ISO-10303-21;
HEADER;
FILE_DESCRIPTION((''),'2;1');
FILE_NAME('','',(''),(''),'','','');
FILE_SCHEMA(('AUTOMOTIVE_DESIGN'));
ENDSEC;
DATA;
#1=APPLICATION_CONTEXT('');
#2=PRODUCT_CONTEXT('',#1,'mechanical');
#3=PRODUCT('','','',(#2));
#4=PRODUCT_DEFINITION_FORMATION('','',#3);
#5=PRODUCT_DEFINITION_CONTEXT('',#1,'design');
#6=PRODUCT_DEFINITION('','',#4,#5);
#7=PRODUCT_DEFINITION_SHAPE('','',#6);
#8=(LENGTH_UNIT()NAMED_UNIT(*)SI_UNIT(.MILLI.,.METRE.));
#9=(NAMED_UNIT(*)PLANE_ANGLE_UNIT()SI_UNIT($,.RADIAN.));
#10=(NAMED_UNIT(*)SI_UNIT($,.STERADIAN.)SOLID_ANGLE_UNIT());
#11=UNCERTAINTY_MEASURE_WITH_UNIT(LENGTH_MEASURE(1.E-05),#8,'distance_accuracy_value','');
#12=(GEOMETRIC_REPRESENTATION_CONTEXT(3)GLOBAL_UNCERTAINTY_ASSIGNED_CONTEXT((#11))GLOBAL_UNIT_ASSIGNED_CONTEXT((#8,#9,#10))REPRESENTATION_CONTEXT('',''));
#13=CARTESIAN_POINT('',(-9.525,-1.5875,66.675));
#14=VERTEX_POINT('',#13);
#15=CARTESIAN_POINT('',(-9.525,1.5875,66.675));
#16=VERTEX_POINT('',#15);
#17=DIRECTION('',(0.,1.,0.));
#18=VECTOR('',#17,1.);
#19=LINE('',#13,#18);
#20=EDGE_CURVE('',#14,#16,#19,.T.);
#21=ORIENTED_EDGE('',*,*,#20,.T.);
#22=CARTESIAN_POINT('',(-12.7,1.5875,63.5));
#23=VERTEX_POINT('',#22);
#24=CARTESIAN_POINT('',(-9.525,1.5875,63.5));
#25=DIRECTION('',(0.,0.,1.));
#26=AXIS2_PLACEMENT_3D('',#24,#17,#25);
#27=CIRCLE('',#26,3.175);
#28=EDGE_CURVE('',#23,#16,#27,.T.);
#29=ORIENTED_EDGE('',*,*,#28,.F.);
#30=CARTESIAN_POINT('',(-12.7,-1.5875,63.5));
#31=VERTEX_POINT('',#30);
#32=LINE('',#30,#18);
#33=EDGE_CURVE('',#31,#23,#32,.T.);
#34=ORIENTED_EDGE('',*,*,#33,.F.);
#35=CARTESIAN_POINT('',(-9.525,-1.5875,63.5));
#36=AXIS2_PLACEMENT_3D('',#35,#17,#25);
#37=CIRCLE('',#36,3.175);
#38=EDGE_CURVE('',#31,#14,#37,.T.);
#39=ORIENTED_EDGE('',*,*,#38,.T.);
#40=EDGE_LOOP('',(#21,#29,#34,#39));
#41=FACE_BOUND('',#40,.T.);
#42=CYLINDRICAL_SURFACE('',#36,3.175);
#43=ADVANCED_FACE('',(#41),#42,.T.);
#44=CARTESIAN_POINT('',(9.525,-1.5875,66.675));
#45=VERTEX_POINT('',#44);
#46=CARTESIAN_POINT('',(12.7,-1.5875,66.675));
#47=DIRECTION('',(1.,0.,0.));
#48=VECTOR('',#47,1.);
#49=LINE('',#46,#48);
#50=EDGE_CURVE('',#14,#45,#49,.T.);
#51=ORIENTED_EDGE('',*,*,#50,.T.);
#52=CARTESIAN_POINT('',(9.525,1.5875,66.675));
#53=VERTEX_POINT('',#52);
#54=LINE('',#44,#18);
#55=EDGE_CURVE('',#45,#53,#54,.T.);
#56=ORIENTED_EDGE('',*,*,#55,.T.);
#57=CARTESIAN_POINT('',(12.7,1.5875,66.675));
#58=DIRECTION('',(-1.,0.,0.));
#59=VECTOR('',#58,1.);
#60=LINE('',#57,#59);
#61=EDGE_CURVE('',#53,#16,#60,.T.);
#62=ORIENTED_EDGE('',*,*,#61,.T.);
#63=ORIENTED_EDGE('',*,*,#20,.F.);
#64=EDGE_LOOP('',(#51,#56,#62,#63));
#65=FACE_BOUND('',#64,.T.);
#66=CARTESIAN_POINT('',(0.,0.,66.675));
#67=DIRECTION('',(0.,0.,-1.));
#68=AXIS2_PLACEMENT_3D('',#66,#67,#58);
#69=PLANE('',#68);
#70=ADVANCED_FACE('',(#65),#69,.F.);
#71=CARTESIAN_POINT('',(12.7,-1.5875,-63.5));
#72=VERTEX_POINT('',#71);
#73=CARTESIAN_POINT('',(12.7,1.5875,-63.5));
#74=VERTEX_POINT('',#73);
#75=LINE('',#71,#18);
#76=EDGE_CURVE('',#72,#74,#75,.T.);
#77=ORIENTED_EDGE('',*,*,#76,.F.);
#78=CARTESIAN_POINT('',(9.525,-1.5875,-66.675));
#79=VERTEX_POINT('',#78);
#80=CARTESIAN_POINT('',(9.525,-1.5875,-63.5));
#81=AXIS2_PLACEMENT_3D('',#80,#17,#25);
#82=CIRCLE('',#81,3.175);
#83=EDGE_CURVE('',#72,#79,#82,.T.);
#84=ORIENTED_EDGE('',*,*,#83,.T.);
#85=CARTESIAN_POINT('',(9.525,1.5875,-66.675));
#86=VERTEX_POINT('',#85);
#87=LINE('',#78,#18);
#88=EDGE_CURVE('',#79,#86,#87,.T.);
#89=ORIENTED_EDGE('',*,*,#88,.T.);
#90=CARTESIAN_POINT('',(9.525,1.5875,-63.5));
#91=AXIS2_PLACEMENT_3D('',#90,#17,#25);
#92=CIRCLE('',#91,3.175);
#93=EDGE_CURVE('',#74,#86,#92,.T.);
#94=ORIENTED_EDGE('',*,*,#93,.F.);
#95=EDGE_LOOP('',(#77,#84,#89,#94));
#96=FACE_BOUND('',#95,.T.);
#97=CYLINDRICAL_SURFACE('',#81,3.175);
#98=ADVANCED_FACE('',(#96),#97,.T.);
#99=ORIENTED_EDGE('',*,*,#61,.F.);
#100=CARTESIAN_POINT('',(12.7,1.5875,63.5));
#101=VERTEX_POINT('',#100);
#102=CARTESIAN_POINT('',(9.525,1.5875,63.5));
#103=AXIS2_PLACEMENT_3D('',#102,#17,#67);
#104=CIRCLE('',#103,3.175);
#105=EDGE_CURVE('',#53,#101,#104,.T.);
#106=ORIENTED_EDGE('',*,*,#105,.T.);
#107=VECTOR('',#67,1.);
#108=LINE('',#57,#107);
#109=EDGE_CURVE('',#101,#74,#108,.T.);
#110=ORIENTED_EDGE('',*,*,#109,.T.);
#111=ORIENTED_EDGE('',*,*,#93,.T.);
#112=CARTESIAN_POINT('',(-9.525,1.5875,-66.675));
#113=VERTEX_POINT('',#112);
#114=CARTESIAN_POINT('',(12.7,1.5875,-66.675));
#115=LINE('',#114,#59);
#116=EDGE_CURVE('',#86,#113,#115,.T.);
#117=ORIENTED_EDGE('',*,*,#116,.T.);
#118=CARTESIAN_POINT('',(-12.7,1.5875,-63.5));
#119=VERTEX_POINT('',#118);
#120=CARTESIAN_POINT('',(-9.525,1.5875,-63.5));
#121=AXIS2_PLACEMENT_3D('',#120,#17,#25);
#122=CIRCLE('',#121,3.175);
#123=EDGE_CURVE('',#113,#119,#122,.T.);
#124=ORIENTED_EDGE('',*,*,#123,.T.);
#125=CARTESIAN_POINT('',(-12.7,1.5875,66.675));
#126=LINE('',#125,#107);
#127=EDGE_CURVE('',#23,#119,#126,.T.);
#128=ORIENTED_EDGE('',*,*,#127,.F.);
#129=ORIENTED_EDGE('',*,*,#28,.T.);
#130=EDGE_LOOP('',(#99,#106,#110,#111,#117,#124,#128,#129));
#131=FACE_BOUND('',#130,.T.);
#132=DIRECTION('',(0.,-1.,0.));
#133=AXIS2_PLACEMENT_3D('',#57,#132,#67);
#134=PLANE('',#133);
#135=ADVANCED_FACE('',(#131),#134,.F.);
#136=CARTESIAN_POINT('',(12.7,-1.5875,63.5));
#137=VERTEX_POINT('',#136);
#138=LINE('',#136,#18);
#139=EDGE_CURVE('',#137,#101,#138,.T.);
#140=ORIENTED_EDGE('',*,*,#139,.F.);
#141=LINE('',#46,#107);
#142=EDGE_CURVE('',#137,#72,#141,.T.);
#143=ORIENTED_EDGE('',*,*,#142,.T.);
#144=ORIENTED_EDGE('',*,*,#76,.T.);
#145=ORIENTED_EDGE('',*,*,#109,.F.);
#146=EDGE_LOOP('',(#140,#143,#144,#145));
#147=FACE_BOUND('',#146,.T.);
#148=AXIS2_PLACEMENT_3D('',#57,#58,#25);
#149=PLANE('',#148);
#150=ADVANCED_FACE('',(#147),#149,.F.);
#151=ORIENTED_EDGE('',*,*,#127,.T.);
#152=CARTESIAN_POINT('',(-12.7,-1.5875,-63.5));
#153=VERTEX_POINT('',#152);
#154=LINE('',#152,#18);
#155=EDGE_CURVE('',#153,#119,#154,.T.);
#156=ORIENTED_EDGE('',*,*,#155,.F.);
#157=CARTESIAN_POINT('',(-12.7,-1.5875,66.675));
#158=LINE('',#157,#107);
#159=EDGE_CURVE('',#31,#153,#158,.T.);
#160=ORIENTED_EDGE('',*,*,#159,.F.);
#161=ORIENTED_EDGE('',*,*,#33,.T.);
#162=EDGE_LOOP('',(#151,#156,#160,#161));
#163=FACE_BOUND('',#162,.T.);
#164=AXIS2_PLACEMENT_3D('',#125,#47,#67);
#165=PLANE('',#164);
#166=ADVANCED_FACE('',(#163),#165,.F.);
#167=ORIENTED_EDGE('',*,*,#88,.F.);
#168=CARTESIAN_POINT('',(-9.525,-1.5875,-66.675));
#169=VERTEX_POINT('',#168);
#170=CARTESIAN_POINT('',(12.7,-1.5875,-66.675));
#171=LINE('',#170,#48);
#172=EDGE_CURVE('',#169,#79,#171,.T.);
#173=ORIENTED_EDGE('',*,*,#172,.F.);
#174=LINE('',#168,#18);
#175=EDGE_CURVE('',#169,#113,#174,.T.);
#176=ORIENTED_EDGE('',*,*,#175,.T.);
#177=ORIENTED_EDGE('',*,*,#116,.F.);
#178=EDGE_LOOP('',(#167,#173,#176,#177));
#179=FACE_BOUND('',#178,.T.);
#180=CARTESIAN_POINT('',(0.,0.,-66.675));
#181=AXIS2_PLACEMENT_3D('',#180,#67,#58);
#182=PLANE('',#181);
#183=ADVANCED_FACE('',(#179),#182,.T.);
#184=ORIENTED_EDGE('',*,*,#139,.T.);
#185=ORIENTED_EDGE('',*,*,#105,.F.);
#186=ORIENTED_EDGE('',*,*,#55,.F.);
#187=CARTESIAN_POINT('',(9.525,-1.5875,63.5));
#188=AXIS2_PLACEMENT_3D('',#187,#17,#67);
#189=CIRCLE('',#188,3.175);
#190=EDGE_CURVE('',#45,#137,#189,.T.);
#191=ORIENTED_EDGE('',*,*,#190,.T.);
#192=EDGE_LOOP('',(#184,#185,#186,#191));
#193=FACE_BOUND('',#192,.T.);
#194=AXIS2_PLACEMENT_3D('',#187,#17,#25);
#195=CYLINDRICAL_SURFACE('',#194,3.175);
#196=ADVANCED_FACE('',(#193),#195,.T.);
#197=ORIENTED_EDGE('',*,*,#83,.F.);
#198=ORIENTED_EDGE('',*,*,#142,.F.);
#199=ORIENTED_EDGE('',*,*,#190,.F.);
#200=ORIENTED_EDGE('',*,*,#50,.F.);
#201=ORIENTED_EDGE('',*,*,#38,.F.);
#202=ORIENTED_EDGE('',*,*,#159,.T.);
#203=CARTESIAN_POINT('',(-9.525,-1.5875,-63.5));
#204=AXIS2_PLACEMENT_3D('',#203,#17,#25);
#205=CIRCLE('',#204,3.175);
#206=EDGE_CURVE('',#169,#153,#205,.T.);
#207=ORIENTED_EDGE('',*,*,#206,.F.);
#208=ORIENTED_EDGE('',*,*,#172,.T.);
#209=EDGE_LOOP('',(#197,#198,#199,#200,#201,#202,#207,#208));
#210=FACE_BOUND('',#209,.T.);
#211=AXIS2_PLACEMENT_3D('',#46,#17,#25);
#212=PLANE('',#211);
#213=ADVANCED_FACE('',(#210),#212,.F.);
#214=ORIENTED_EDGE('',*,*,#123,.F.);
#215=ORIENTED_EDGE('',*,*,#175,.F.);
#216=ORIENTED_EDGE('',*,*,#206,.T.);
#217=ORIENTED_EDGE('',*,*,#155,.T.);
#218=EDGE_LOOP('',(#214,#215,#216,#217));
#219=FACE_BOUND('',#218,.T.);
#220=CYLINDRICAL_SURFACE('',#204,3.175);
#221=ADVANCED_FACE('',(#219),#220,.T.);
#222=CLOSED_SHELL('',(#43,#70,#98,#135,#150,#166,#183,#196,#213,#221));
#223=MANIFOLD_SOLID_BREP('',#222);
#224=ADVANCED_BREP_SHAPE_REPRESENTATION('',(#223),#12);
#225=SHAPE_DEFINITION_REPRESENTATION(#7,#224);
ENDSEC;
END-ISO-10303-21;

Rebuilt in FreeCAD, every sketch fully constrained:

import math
import FreeCAD as App
import Part
import Sketcher
Q = App.Units.Quantity

doc = App.newDocument("Part")
body = doc.addObject("PartDesign::Body", "Body")

sketch1 = body.newObject("Sketcher::SketchObject", "Sketch")
sketch1.AttachmentSupport = (doc.getObject("XY_Plane"), [""])
sketch1.MapMode = "FlatFace"
sketch1.addGeometry(Part.LineSegment(App.Vector(-12.7, 1.5875, 0), App.Vector(-12.7, -1.5875, 0)), False)
sketch1.addGeometry(Part.LineSegment(App.Vector(-12.7, -1.5875, 0), App.Vector(12.7, -1.5875, 0)), False)
sketch1.addGeometry(Part.LineSegment(App.Vector(12.7, -1.5875, 0), App.Vector(12.7, 1.5875, 0)), False)
sketch1.addGeometry(Part.LineSegment(App.Vector(12.7, 1.5875, 0), App.Vector(-12.7, 1.5875, 0)), False)
sketch1.addConstraint(Sketcher.Constraint("Coincident", 0, 2, 1, 1))
sketch1.addConstraint(Sketcher.Constraint("Coincident", 1, 2, 2, 1))
sketch1.addConstraint(Sketcher.Constraint("Coincident", 2, 2, 3, 1))
sketch1.addConstraint(Sketcher.Constraint("Coincident", 3, 2, 0, 1))
sketch1.addConstraint(Sketcher.Constraint("Vertical", 0))
sketch1.addConstraint(Sketcher.Constraint("Horizontal", 1))
sketch1.addConstraint(Sketcher.Constraint("Vertical", 2))
sketch1.addConstraint(Sketcher.Constraint("Horizontal", 3))
sketch1.addConstraint(Sketcher.Constraint("Symmetric", 0, 2, 2, 2, -1, 1))
sketch1.addConstraint(Sketcher.Constraint("DistanceX", 1, 1, 1, 2, Q("1 in")))
sketch1.addConstraint(Sketcher.Constraint("DistanceY", 0, 2, 0, 1, Q("0.125 in")))
pad1 = body.newObject("PartDesign::Pad", "Pad")
pad1.Profile = sketch1
pad1.Type = "TwoLengths"
pad1.Length = Q("2.625 in")
pad1.Length2 = Q("2.625 in")

sketch2 = body.newObject("Sketcher::SketchObject", "Sketch001")
sketch2.AttachmentSupport = (doc.getObject("XZ_Plane"), [""])
sketch2.MapMode = "FlatFace"
sketch2.AttachmentOffset = App.Placement(App.Vector(0, 0, -0.0625 * 25.4), App.Rotation())
sketch2.addGeometry(Part.LineSegment(App.Vector(-27.278, -81.253, 0), App.Vector(-27.278, 81.253, 0)), False)
sketch2.addGeometry(Part.LineSegment(App.Vector(-27.278, 81.253, 0), App.Vector(27.278, 81.253, 0)), False)
sketch2.addGeometry(Part.LineSegment(App.Vector(27.278, 81.253, 0), App.Vector(27.278, -81.253, 0)), False)
sketch2.addGeometry(Part.LineSegment(App.Vector(27.278, -81.253, 0), App.Vector(-27.278, -81.253, 0)), False)
sketch2.addGeometry(Part.LineSegment(App.Vector(12.7, -63.5, 0), App.Vector(12.7, 63.5, 0)), False)
sketch2.addGeometry(Part.ArcOfCircle(Part.Circle(App.Vector(9.525, 63.5, 0), App.Vector(0, 0, 1), 3.175), math.radians(0), math.radians(90)), False)
sketch2.addGeometry(Part.LineSegment(App.Vector(9.525, 66.675, 0), App.Vector(-9.525, 66.675, 0)), False)
sketch2.addGeometry(Part.ArcOfCircle(Part.Circle(App.Vector(-9.525, 63.5, 0), App.Vector(0, 0, 1), 3.175), math.radians(90), math.radians(180)), False)
sketch2.addGeometry(Part.LineSegment(App.Vector(-12.7, 63.5, 0), App.Vector(-12.7, -63.5, 0)), False)
sketch2.addGeometry(Part.ArcOfCircle(Part.Circle(App.Vector(-9.525, -63.5, 0), App.Vector(0, 0, 1), 3.175), math.radians(-180), math.radians(-90)), False)
sketch2.addGeometry(Part.LineSegment(App.Vector(-9.525, -66.675, 0), App.Vector(9.525, -66.675, 0)), False)
sketch2.addGeometry(Part.ArcOfCircle(Part.Circle(App.Vector(9.525, -63.5, 0), App.Vector(0, 0, 1), 3.175), math.radians(-90), math.radians(0)), False)
sketch2.addConstraint(Sketcher.Constraint("Coincident", 0, 2, 1, 1))
sketch2.addConstraint(Sketcher.Constraint("Coincident", 1, 2, 2, 1))
sketch2.addConstraint(Sketcher.Constraint("Coincident", 2, 2, 3, 1))
sketch2.addConstraint(Sketcher.Constraint("Coincident", 3, 2, 0, 1))
sketch2.addConstraint(Sketcher.Constraint("Tangent", 4, 2, 5, 1))
sketch2.addConstraint(Sketcher.Constraint("Tangent", 5, 2, 6, 1))
sketch2.addConstraint(Sketcher.Constraint("Tangent", 6, 2, 7, 1))
sketch2.addConstraint(Sketcher.Constraint("Tangent", 7, 2, 8, 1))
sketch2.addConstraint(Sketcher.Constraint("Tangent", 8, 2, 9, 1))
sketch2.addConstraint(Sketcher.Constraint("Tangent", 9, 2, 10, 1))
sketch2.addConstraint(Sketcher.Constraint("Tangent", 10, 2, 11, 1))
sketch2.addConstraint(Sketcher.Constraint("Tangent", 11, 2, 4, 1))
sketch2.addConstraint(Sketcher.Constraint("Vertical", 0))
sketch2.addConstraint(Sketcher.Constraint("Horizontal", 1))
sketch2.addConstraint(Sketcher.Constraint("Vertical", 2))
sketch2.addConstraint(Sketcher.Constraint("Horizontal", 3))
sketch2.addConstraint(Sketcher.Constraint("Vertical", 4))
sketch2.addConstraint(Sketcher.Constraint("Horizontal", 6))
sketch2.addConstraint(Sketcher.Constraint("Vertical", 8))
sketch2.addConstraint(Sketcher.Constraint("Horizontal", 10))
sketch2.addConstraint(Sketcher.Constraint("Equal", 5, 7))
sketch2.addConstraint(Sketcher.Constraint("Equal", 7, 9))
sketch2.addConstraint(Sketcher.Constraint("Equal", 9, 11))
sketch2.addConstraint(Sketcher.Constraint("Symmetric", 5, 3, 9, 3, -1, 1))
sketch2.addConstraint(Sketcher.Constraint("Symmetric", 0, 2, 2, 2, -1, 1))
sketch2.addConstraint(Sketcher.Constraint("DistanceY", 4, 1, 4, 2, Q("5 in")))
sketch2.addConstraint(Sketcher.Constraint("Radius", 5, Q("0.125 in")))
sketch2.addConstraint(Sketcher.Constraint("DistanceX", 6, 2, 6, 1, Q("0.75 in")))
sketch2.addConstraint(Sketcher.Constraint("DistanceX", 1, 1, 1, 2, 54.556))
sketch2.addConstraint(Sketcher.Constraint("DistanceY", 0, 1, 0, 2, 162.506))
pocket1 = body.newObject("PartDesign::Pocket", "Pocket")
pocket1.Profile = sketch2
pocket1.Type = "ThroughAll"
pocket1.Reversed = True

doc.recompute()
